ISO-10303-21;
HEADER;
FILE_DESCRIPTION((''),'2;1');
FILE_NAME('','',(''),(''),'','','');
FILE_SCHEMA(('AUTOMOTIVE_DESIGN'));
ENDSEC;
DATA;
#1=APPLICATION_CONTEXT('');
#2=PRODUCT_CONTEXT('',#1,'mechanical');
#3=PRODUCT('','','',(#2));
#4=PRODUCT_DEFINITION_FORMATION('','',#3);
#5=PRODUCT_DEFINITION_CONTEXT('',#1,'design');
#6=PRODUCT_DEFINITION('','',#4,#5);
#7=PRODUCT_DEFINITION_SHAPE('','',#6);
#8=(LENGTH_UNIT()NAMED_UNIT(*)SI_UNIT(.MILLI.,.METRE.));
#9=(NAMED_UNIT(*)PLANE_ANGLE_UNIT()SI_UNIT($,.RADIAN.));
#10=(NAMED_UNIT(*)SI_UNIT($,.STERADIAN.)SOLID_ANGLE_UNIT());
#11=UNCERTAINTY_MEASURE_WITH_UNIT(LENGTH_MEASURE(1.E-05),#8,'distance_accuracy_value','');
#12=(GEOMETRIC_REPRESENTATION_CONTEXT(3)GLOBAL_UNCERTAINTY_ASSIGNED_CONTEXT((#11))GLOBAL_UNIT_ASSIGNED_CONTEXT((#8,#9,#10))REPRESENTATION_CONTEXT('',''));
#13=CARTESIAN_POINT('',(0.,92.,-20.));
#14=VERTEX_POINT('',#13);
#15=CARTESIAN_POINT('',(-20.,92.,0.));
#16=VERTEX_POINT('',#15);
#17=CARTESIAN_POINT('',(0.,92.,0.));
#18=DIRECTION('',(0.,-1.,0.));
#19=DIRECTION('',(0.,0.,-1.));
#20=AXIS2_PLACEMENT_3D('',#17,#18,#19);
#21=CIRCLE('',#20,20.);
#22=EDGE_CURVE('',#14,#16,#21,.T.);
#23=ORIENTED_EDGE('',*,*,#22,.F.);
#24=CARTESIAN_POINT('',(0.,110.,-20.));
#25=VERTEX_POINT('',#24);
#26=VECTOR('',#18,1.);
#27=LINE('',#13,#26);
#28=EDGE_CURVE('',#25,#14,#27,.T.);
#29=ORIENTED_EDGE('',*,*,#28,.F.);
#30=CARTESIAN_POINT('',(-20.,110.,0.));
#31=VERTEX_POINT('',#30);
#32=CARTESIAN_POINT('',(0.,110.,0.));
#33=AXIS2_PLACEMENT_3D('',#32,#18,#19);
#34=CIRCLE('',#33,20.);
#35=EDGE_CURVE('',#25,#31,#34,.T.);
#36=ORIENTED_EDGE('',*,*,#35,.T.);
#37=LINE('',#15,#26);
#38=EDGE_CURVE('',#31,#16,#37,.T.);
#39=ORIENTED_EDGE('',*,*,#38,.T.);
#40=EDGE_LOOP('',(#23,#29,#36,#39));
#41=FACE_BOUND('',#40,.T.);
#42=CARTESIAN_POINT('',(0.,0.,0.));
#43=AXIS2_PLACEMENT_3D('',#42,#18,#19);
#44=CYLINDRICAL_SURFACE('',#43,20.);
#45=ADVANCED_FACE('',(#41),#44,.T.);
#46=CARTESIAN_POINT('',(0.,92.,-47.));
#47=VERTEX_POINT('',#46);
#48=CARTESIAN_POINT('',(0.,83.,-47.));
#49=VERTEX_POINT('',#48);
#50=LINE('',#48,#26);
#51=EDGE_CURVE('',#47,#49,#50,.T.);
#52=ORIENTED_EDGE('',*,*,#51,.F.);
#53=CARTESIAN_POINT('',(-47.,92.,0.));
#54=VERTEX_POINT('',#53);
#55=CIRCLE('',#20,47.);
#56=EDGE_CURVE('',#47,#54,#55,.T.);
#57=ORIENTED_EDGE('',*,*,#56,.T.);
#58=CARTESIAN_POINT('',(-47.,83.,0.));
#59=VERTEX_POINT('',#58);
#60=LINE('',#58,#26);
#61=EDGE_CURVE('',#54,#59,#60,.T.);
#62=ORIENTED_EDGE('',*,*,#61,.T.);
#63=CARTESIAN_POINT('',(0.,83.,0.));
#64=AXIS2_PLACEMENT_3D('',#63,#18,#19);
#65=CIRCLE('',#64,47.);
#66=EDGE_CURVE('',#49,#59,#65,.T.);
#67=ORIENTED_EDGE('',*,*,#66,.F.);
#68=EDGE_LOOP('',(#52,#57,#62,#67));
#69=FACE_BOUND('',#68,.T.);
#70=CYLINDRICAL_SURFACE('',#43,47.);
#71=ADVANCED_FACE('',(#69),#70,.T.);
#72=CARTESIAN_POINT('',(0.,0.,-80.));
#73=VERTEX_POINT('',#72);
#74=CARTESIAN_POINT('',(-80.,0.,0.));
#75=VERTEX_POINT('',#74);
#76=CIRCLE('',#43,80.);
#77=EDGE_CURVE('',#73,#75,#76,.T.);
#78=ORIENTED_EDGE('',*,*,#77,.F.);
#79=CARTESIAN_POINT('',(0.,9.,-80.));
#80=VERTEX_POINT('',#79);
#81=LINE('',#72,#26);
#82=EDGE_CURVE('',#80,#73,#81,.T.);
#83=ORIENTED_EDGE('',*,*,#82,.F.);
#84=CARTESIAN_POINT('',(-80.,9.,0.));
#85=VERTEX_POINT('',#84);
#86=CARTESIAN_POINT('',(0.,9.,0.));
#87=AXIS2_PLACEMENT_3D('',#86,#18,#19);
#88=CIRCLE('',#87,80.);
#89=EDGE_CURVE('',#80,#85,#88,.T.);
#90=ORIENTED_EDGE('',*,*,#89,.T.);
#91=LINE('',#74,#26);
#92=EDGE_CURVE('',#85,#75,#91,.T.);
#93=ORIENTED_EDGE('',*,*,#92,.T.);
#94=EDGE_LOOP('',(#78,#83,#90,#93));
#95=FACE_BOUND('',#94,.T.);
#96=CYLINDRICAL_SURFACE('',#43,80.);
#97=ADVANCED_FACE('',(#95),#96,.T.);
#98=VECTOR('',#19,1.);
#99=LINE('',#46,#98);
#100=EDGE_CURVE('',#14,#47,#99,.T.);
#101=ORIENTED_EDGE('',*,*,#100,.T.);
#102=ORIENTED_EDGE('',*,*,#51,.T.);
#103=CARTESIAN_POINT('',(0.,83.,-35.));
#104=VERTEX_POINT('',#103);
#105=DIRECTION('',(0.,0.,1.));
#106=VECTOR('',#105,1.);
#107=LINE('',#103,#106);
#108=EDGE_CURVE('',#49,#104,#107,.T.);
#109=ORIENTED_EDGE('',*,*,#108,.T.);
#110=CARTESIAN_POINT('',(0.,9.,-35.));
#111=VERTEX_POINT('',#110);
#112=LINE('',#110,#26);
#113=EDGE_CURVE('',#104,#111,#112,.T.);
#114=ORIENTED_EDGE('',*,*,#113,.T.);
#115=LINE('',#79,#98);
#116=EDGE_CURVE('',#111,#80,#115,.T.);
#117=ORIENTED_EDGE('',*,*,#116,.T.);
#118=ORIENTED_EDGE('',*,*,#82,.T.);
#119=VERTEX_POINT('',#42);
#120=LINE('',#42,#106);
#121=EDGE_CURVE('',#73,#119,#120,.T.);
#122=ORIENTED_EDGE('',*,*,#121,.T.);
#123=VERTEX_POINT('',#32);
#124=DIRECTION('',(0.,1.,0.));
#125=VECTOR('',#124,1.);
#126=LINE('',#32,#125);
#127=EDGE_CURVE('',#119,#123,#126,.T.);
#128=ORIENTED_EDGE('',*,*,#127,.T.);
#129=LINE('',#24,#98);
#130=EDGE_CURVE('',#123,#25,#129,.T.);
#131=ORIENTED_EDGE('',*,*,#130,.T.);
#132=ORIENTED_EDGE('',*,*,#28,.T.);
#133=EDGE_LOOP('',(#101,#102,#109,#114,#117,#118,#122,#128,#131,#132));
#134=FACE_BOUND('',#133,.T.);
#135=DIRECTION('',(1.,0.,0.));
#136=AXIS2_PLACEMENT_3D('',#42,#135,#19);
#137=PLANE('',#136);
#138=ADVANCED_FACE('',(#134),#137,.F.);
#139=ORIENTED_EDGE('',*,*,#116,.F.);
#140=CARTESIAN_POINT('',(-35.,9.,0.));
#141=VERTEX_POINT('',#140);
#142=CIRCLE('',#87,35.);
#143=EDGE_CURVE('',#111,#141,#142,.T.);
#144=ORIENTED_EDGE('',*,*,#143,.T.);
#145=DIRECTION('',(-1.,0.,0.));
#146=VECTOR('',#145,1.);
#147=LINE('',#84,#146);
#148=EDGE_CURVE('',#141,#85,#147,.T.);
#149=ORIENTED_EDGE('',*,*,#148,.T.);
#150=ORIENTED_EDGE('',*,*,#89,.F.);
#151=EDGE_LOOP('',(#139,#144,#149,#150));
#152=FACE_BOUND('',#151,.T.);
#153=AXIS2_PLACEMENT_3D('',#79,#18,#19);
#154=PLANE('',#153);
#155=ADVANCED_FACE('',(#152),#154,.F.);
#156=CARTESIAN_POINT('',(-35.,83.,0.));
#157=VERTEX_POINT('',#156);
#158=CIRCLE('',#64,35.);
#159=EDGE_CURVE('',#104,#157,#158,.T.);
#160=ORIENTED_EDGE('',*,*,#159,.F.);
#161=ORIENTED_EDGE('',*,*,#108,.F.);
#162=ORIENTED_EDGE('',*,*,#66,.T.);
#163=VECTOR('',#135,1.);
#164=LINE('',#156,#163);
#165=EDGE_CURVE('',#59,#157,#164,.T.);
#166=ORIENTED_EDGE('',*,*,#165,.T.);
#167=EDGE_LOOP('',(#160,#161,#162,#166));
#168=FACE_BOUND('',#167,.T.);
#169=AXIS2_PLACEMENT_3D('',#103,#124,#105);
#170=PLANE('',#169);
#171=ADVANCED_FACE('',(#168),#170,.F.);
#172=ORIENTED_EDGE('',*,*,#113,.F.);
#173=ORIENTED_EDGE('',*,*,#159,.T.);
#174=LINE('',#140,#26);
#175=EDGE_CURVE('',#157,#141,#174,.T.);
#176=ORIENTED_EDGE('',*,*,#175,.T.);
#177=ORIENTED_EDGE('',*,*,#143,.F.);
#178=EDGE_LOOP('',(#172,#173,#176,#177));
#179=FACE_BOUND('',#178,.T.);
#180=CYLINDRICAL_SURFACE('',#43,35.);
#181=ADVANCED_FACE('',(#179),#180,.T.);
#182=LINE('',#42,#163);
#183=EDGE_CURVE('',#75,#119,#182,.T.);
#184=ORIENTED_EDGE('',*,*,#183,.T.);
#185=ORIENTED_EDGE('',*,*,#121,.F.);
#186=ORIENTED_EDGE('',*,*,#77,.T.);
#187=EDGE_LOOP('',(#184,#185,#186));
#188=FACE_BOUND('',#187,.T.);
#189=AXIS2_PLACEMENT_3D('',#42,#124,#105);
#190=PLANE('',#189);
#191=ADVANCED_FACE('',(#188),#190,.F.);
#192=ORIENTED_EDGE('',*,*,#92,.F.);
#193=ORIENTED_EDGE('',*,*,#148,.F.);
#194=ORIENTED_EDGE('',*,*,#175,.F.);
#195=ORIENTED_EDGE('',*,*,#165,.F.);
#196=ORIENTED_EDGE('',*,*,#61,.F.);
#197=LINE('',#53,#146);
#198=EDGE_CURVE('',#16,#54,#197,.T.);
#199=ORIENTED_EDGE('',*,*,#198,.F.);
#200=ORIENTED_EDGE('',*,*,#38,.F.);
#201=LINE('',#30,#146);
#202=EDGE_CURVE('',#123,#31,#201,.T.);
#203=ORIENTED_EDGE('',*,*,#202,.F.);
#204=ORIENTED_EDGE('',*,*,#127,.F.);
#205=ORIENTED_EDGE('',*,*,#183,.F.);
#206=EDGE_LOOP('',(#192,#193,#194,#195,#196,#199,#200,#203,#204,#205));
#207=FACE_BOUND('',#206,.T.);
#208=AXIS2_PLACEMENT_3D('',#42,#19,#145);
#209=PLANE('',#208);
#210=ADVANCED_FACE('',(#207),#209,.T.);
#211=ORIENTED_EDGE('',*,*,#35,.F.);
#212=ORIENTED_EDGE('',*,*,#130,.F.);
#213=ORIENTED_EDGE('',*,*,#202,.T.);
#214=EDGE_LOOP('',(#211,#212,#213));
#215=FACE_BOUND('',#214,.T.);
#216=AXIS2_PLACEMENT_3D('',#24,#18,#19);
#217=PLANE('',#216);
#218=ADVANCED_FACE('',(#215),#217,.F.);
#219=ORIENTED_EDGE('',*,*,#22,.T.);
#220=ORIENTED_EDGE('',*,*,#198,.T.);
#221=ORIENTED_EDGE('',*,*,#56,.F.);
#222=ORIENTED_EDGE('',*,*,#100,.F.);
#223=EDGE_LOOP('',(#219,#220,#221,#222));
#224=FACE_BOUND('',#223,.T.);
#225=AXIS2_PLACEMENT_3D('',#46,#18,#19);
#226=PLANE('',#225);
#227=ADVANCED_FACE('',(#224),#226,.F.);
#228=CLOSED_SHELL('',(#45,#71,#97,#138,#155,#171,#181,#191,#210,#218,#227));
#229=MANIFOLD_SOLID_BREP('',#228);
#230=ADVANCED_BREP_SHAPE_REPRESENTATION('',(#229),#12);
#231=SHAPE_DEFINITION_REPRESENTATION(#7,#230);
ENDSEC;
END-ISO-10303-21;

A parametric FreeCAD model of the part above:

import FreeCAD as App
import Part
import Sketcher
Q = App.Units.Quantity


def add_polygon(sketch, points):
    """Adds a closed chain of lines whose ends are joined by coincident constraints."""
    first, n = sketch.GeometryCount, len(points)
    for a, b in zip(points, points[1:] + points[:1]):
        sketch.addGeometry(Part.LineSegment(App.Vector(*a, 0), App.Vector(*b, 0)), False)
    for i in range(n):
        sketch.addConstraint(Sketcher.Constraint("Coincident", first + i, 2, first + (i + 1) % n, 1))

doc = App.newDocument("Part")
params = doc.addObject("Spreadsheet::Sheet", "Params")
for row, (alias, value) in enumerate([
    ("sketch1_width", "80 mm"),
    ("sketch1_width2", "20 mm"),
    ("sketch1_width3", "27 mm"),
    ("sketch1_width4", "12 mm"),
    ("sketch1_height", "110 mm"),
    ("revolution_angle", "270 deg"),
], start=1):
    params.set(f"A{row}", alias)
    params.set(f"B{row}", "=" + value)
    params.setAlias(f"B{row}", alias)

body = doc.addObject("PartDesign::Body", "Body")

sketch1 = body.newObject("Sketcher::SketchObject", "Sketch")
sketch1.AttachmentSupport = (doc.getObject("XY_Plane"), [""])
sketch1.MapMode = "FlatFace"
add_polygon(sketch1, [(-80, 0), (0, 0), (0, 110), (-20, 110), (-20, 92), (-47, 92), (-47, 83), (-35, 83), (-35, 9), (-80, 9)])
sketch1.addConstraint([
    Sketcher.Constraint("Horizontal", 0),
    Sketcher.Constraint("Vertical", 1),
    Sketcher.Constraint("Horizontal", 2),
    Sketcher.Constraint("Vertical", 3),
    Sketcher.Constraint("Horizontal", 4),
    Sketcher.Constraint("Vertical", 5),
    Sketcher.Constraint("Horizontal", 6),
    Sketcher.Constraint("Vertical", 7),
    Sketcher.Constraint("Horizontal", 8),
    Sketcher.Constraint("Vertical", 9),
    Sketcher.Constraint("Coincident", 0, 2, -1, 1),
    Sketcher.Constraint("Equal", 5, 9),
    Sketcher.Constraint("DistanceX", 0, 1, 0, 2, Q("80 mm")),
    Sketcher.Constraint("DistanceX", 2, 2, 2, 1, Q("20 mm")),
    Sketcher.Constraint("DistanceX", 4, 2, 4, 1, Q("27 mm")),
    Sketcher.Constraint("DistanceX", 6, 1, 6, 2, Q("12 mm")),
    Sketcher.Constraint("DistanceY", 1, 1, 1, 2, Q("110 mm")),
    Sketcher.Constraint("DistanceY", 3, 2, 3, 1, Q("18 mm")),
    Sketcher.Constraint("DistanceY", 5, 2, 5, 1, Q("9 mm")),
])
sketch1.setExpression("Constraints[22]", "Params.sketch1_width")
sketch1.setExpression("Constraints[23]", "Params.sketch1_width2")
sketch1.setExpression("Constraints[24]", "Params.sketch1_width3")
sketch1.setExpression("Constraints[25]", "Params.sketch1_width4")
sketch1.setExpression("Constraints[26]", "Params.sketch1_height")
revolution = body.newObject("PartDesign::Revolution", "Revolution")
revolution.Profile = sketch1
revolution.ReferenceAxis = (sketch1, ["V_Axis"])
revolution.setExpression("Angle", "Params.revolution_angle")

doc.recompute()
